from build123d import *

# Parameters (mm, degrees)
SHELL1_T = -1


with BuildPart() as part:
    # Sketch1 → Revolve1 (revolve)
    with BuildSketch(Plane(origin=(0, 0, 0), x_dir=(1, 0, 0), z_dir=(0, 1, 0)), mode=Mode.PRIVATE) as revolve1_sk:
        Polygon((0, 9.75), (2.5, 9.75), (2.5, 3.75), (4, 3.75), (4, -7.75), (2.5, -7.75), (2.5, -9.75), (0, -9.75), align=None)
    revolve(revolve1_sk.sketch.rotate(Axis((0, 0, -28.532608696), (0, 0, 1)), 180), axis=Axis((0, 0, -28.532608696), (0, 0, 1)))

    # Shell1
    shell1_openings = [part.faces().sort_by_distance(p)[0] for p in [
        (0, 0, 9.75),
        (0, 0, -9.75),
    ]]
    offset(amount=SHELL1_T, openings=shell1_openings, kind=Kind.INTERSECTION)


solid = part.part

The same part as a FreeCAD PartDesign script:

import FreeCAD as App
import Part
import Sketcher

V = App.Vector


def faces_at(feature, points):
    """Names of the faces that lie closest to the given points."""
    faces = feature.Shape.Faces
    near = lambda p: min(range(len(faces)), key=lambda i: faces[i].distToShape(Part.Vertex(*p))[0])
    return sorted({f"Face{near(p) + 1}" for p in points})


def add_polygon(sketch, points):
    """Adds a closed chain of lines whose ends are joined by coincident constraints."""
    first, n = sketch.GeometryCount, len(points)
    for a, b in zip(points, points[1:] + points[:1]):
        sketch.addGeometry(Part.LineSegment(App.Vector(*a, 0), App.Vector(*b, 0)), False)
    for i in range(n):
        sketch.addConstraint(Sketcher.Constraint("Coincident", first + i, 2, first + (i + 1) % n, 1))

doc = App.newDocument("Part")
body = doc.addObject("PartDesign::Body", "Body")

sketch1 = body.newObject("Sketcher::SketchObject", "Sketch")
sketch1.AttachmentSupport = (doc.getObject("XZ_Plane"), [""])
sketch1.MapMode = "FlatFace"
add_polygon(sketch1, [(2.5, -9.8), (0, -9.8), (0, 9.8), (2.5, 9.8), (2.5, 7.8), (4, 7.8), (4, -3.8), (2.5, -3.8)])
sketch1.addConstraint([
    Sketcher.Constraint("Horizontal", 0),
    Sketcher.Constraint("Vertical", 1),
    Sketcher.Constraint("Horizontal", 2),
    Sketcher.Constraint("Vertical", 3),
    Sketcher.Constraint("Horizontal", 4),
    Sketcher.Constraint("Vertical", 5),
    Sketcher.Constraint("Horizontal", 6),
    Sketcher.Constraint("Vertical", 7),
    Sketcher.Constraint("Symmetric", 0, 2, 1, 2, -1, 1),
    Sketcher.Constraint("Vertical", 3, 2, 6, 2),
    Sketcher.Constraint("DistanceY", 3, 2, 3, 1, 2.0),
    Sketcher.Constraint("DistanceY", 7, 2, 7, 1, 6.0),
    Sketcher.Constraint("DistanceX", 0, 2, 0, 1, 2.5),
    Sketcher.Constraint("DistanceX", 4, 1, 4, 2, 1.5),
    Sketcher.Constraint("DistanceY", 1, 1, 1, 2, 19.5),
])
revolution = body.newObject("PartDesign::Revolution", "Revolution")
revolution.Profile = sketch1
revolution.ReferenceAxis = (sketch1, ["V_Axis"])
revolution.Angle = 360
doc.recompute()

thickness = body.newObject("PartDesign::Thickness", "Thickness")
thickness.Base = (revolution, faces_at(revolution, [(0, 0, 9.75), (0, 0, -9.75)]))
thickness.Value = 1
thickness.Reversed = True
thickness.Join = "Intersection"

doc.recompute()
